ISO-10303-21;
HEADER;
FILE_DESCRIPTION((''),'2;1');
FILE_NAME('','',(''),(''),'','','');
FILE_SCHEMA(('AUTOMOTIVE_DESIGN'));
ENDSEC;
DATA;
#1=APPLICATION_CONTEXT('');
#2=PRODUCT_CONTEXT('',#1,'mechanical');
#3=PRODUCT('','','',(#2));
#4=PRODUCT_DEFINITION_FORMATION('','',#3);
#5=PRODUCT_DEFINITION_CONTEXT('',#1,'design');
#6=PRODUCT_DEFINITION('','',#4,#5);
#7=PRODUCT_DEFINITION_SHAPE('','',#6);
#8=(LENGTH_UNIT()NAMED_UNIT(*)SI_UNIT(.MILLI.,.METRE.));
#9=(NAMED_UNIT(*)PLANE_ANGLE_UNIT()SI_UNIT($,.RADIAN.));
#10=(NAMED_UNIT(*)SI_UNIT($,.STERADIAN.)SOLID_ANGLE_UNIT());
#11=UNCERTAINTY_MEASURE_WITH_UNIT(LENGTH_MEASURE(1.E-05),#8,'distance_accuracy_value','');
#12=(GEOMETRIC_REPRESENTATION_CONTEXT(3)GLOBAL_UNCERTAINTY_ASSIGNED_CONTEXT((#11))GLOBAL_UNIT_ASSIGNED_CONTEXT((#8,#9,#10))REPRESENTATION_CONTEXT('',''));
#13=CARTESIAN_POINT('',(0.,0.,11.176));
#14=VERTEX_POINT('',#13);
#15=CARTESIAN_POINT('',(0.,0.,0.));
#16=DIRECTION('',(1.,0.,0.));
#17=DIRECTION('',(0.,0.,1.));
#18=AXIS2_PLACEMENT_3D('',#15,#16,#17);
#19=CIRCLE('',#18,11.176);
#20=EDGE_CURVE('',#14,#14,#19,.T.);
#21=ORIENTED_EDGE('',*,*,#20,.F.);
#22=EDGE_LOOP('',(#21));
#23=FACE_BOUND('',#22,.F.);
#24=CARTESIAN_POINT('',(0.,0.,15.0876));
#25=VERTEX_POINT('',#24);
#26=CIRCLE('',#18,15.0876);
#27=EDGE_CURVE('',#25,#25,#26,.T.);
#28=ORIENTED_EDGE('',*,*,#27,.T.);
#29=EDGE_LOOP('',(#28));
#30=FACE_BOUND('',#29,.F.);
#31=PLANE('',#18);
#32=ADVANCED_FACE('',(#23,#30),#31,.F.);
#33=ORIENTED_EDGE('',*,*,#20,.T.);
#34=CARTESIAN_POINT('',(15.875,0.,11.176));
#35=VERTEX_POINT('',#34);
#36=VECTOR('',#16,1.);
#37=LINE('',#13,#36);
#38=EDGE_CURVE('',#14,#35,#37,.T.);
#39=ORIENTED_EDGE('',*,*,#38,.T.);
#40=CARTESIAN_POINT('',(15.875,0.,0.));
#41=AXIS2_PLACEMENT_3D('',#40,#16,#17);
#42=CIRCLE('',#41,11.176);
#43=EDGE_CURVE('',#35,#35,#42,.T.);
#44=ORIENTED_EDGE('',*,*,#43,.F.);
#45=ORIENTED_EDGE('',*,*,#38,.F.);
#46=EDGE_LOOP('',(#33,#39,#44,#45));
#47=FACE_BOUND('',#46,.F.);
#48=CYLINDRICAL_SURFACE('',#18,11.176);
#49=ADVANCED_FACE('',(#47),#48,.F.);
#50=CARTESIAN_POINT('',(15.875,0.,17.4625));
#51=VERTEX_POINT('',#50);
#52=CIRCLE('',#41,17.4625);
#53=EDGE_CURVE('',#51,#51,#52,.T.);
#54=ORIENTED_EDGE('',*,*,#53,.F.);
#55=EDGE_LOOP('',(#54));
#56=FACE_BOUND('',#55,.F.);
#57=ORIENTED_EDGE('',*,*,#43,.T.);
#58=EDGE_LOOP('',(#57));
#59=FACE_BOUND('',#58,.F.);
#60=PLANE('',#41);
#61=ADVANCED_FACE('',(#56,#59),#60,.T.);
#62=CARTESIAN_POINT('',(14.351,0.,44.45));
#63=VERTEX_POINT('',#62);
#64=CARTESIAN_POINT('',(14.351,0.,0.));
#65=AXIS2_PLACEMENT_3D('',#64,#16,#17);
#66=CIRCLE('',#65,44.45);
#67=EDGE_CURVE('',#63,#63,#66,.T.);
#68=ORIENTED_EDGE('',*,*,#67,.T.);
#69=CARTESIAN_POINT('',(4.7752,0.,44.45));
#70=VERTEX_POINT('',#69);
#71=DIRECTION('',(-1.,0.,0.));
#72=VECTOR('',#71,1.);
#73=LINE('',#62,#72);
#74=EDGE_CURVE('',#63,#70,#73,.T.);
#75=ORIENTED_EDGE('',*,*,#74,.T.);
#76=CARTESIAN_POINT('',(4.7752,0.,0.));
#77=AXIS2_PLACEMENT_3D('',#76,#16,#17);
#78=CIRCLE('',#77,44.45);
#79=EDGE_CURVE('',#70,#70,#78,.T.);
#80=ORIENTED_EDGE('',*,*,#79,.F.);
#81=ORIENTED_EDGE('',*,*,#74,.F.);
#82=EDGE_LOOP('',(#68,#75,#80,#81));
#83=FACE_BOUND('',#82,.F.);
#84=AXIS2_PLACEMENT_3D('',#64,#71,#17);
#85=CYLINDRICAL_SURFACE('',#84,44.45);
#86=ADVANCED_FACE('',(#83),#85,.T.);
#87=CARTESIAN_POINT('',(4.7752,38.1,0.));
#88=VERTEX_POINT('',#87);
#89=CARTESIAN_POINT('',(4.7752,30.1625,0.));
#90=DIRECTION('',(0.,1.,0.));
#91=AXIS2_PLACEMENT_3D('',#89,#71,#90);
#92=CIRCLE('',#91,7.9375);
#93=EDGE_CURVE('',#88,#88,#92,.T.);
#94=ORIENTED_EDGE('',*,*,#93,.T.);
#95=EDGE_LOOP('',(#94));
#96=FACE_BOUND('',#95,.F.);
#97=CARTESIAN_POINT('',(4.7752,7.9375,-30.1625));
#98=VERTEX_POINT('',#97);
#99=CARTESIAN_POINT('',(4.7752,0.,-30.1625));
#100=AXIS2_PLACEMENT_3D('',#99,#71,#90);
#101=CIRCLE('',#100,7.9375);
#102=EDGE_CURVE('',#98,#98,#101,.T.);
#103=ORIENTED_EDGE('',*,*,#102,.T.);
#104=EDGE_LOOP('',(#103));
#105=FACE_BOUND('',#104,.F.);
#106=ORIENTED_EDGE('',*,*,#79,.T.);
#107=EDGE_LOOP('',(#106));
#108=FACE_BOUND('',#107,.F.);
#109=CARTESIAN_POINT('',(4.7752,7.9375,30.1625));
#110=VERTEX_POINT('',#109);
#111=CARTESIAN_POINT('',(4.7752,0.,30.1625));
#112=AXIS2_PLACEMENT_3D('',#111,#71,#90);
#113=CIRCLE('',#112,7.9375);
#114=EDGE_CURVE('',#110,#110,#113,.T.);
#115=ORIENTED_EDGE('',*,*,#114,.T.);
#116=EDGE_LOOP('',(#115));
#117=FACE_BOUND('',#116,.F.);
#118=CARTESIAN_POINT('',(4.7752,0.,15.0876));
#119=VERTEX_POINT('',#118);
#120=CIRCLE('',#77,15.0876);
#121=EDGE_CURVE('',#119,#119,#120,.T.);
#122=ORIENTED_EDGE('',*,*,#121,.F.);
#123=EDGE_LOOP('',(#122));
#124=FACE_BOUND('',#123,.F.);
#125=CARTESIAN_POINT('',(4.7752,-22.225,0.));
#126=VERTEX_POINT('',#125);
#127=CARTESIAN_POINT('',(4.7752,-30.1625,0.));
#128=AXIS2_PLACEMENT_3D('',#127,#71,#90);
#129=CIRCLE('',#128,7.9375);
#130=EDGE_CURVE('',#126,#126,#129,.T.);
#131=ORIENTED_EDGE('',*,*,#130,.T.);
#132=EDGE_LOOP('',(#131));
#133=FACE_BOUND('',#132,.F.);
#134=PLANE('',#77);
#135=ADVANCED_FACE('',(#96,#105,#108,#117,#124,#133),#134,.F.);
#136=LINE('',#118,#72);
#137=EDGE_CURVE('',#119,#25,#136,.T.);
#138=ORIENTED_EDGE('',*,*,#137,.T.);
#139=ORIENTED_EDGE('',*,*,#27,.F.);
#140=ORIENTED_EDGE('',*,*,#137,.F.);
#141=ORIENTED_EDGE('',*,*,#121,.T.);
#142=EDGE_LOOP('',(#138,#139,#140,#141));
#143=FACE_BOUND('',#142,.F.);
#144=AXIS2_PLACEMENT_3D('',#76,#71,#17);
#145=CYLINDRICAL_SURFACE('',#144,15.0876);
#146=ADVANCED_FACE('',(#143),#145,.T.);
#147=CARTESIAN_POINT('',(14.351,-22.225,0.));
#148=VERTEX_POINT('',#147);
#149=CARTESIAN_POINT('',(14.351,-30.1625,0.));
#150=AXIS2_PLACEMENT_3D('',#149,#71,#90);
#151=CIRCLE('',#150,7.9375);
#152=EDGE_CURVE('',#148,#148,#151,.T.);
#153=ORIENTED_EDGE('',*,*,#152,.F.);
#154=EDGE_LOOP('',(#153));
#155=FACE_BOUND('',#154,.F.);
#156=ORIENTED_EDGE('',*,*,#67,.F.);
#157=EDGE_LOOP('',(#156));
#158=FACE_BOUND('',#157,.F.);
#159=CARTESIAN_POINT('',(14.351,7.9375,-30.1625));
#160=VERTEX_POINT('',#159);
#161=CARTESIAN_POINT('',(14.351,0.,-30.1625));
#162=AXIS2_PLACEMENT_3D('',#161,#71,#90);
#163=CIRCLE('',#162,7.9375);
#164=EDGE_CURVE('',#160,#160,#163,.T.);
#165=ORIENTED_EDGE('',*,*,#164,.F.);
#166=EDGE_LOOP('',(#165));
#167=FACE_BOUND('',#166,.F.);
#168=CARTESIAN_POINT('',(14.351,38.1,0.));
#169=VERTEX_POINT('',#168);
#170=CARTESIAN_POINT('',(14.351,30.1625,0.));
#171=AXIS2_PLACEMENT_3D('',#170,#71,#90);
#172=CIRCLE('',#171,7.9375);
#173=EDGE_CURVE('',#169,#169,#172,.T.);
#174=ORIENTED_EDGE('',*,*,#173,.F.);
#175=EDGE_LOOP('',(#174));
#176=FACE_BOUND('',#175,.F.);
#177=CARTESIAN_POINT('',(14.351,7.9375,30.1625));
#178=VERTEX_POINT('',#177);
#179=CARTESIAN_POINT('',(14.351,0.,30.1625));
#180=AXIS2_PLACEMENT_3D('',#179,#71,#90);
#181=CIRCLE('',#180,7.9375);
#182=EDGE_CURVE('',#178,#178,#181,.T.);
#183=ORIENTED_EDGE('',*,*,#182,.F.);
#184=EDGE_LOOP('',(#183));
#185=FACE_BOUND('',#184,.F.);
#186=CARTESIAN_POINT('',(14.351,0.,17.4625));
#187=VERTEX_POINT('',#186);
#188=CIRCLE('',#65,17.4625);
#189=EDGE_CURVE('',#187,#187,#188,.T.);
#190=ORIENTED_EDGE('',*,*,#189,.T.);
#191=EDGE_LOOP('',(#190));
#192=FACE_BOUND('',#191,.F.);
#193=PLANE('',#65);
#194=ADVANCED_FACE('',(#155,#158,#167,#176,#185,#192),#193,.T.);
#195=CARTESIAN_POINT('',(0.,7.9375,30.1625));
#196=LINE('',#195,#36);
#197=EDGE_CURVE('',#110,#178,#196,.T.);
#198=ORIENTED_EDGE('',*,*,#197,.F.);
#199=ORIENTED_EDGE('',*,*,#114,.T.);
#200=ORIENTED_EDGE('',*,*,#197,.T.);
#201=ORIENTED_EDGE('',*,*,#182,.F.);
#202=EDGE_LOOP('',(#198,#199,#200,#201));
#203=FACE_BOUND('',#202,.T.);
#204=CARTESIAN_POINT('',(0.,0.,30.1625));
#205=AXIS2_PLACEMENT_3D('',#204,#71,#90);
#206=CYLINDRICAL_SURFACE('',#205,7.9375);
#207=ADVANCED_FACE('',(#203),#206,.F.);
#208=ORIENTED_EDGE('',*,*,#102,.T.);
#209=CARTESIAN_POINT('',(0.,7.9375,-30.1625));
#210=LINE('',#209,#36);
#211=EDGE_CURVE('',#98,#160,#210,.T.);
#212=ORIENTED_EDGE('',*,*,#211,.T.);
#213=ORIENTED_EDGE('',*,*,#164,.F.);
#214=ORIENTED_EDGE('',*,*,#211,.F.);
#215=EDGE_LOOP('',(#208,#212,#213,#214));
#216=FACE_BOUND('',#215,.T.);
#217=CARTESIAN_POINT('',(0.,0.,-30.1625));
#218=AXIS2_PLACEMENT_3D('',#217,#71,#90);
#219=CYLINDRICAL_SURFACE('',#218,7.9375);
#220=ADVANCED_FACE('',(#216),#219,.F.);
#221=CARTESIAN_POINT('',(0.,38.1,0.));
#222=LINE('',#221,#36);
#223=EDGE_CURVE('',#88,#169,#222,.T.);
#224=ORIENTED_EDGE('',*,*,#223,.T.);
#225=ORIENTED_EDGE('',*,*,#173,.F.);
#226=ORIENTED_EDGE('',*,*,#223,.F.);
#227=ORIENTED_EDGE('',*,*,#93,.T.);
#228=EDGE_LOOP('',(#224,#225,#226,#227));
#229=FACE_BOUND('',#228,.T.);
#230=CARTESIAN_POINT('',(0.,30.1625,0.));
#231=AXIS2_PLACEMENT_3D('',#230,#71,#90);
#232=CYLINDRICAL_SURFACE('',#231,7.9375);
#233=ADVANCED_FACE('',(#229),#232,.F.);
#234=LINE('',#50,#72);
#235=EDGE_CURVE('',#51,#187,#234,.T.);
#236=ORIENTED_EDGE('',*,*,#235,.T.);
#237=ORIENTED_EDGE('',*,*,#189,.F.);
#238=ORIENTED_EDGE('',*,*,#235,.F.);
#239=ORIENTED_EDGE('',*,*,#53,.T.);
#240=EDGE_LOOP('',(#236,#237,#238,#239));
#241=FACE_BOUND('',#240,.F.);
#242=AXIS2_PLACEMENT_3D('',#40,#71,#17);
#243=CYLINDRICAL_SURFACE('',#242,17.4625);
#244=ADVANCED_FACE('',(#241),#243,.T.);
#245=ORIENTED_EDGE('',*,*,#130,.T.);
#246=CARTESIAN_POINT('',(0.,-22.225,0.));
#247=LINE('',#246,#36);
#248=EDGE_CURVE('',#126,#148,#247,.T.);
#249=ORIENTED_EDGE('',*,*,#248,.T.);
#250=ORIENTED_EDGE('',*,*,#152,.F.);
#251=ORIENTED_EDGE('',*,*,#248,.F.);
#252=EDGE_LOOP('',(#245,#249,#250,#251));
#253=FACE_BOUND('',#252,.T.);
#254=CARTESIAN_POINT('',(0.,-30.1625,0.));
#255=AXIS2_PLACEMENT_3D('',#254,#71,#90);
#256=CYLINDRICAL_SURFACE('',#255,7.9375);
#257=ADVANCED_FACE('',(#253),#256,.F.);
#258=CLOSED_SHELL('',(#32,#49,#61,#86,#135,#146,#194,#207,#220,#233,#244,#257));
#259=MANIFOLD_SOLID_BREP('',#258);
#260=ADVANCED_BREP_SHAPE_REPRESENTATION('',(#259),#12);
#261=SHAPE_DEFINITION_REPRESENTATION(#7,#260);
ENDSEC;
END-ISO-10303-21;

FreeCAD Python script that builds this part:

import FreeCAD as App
import Part
import Sketcher
from FreeCAD import Vector
Q = App.Units.Quantity

doc = App.newDocument("Part")
body = doc.addObject("PartDesign::Body", "Body")

sketch1 = body.newObject("Sketcher::SketchObject", "Sketch")
sketch1.AttachmentSupport = (doc.getObject("XZ_Plane"), [""])
sketch1.MapMode = "FlatFace"
sketch1.addGeometry([
    Part.LineSegment(Vector(0, 15.0876, 0), Vector(0, 11.176, 0)),
    Part.LineSegment(Vector(0, 11.176, 0), Vector(15.875, 11.176, 0)),
    Part.LineSegment(Vector(15.875, 11.176, 0), Vector(15.875, 17.4625, 0)),
    Part.LineSegment(Vector(15.875, 17.4625, 0), Vector(14.351, 17.4625, 0)),
    Part.LineSegment(Vector(14.351, 17.4625, 0), Vector(14.351, 44.45, 0)),
    Part.LineSegment(Vector(14.351, 44.45, 0), Vector(4.7752, 44.45, 0)),
    Part.LineSegment(Vector(4.7752, 44.45, 0), Vector(4.7752, 15.0876, 0)),
    Part.LineSegment(Vector(4.7752, 15.0876, 0), Vector(0, 15.0876, 0)),
], False)
sketch1.addConstraint([
    Sketcher.Constraint("Coincident", 0, 2, 1, 1),
    Sketcher.Constraint("Coincident", 1, 2, 2, 1),
    Sketcher.Constraint("Coincident", 2, 2, 3, 1),
    Sketcher.Constraint("Coincident", 3, 2, 4, 1),
    Sketcher.Constraint("Coincident", 4, 2, 5, 1),
    Sketcher.Constraint("Coincident", 5, 2, 6, 1),
    Sketcher.Constraint("Coincident", 6, 2, 7, 1),
    Sketcher.Constraint("Coincident", 7, 2, 0, 1),
    Sketcher.Constraint("Vertical", 0),
    Sketcher.Constraint("Horizontal", 1),
    Sketcher.Constraint("Vertical", 2),
    Sketcher.Constraint("Horizontal", 3),
    Sketcher.Constraint("Vertical", 4),
    Sketcher.Constraint("Horizontal", 5),
    Sketcher.Constraint("Vertical", 6),
    Sketcher.Constraint("Horizontal", 7),
    Sketcher.Constraint("PointOnObject", 0, 2, -2),
    Sketcher.Constraint("DistanceX", 3, 2, 3, 1, Q("0.06 in")),
    Sketcher.Constraint("DistanceX", 1, 1, 1, 2, Q("0.625 in")),
    Sketcher.Constraint("DistanceX", 5, 2, 5, 1, Q("0.377 in")),
    Sketcher.Constraint("DistanceY", 0, 2, 0, 1, Q("0.154 in")),
    Sketcher.Constraint("DistanceY", 4, 1, 4, 2, Q("1.0625 in")),
    Sketcher.Constraint("DistanceY", 6, 2, 6, 1, Q("1.156 in")),
    Sketcher.Constraint("DistanceY", -1, 1, 0, 2, Q("0.44 in")),
])
revolution = body.newObject("PartDesign::Revolution", "Revolution")
revolution.Profile = sketch1
revolution.ReferenceAxis = (sketch1, ["H_Axis"])
revolution.Angle = 360

sketch2 = body.newObject("Sketcher::SketchObject", "Sketch001")
sketch2.AttachmentSupport = (doc.getObject("YZ_Plane"), [""])
sketch2.MapMode = "FlatFace"
sketch2.addGeometry([
    Part.Circle(Vector(0, 30.1625, 0), Vector(0, 0, 1), 7.9375),
    Part.Circle(Vector(-30.1625, 0, 0), Vector(0, 0, 1), 7.9375),
    Part.Circle(Vector(0, -30.1625, 0), Vector(0, 0, 1), 7.9375),
    Part.Circle(Vector(30.1625, 0, 0), Vector(0, 0, 1), 7.9375),
], False)
sketch2.addConstraint([
    Sketcher.Constraint("Equal", 0, 1),
    Sketcher.Constraint("Equal", 1, 2),
    Sketcher.Constraint("Equal", 2, 3),
    Sketcher.Constraint("Symmetric", 0, 3, 2, 3, -1, 1),
    Sketcher.Constraint("Symmetric", 1, 3, 3, 3, -1, 1),
    Sketcher.Constraint("PointOnObject", 0, 3, -2),
    Sketcher.Constraint("PointOnObject", 1, 3, -1),
    Sketcher.Constraint("Diameter", 0, Q("0.625 in")),
    Sketcher.Constraint("DistanceY", -1, 1, 0, 3, Q("1.1875 in")),
    Sketcher.Constraint("DistanceX", 1, 3, -1, 1, Q("1.1875 in")),
])
pocket1 = body.newObject("PartDesign::Pocket", "Pocket")
pocket1.Profile = sketch2
pocket1.Type = "ThroughAll"
pocket1.Reversed = True

doc.recompute()
